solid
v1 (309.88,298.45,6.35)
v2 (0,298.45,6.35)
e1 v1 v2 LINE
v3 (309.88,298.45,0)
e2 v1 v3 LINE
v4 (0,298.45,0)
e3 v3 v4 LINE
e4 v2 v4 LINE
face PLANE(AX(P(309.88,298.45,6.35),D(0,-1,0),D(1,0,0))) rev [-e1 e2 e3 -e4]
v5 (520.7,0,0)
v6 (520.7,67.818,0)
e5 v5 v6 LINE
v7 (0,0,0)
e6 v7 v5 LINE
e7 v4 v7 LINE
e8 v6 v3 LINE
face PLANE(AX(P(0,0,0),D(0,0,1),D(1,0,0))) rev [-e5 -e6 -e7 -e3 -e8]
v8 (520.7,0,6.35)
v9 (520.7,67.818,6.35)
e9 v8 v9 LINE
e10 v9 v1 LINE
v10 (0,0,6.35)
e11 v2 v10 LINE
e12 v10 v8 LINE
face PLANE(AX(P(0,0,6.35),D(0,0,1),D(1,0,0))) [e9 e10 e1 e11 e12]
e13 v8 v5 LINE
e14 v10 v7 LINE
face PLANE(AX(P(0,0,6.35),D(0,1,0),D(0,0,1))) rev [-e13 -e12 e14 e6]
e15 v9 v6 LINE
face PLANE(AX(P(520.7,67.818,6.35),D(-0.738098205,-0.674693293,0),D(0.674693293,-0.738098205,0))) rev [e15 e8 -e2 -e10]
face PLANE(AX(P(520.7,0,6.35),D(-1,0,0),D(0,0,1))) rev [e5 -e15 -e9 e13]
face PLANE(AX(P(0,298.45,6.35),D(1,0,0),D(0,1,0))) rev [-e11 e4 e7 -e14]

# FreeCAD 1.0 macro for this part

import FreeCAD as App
import Part
import Sketcher

V = App.Vector
Q = App.Units.Quantity


def add_polygon(sketch, points):
    """Adds a closed chain of lines whose ends are joined by coincident constraints."""
    first, n = sketch.GeometryCount, len(points)
    for a, b in zip(points, points[1:] + points[:1]):
        sketch.addGeometry(Part.LineSegment(App.Vector(*a, 0), App.Vector(*b, 0)), False)
    for i in range(n):
        sketch.addConstraint(Sketcher.Constraint("Coincident", first + i, 2, first + (i + 1) % n, 1))

doc = App.newDocument("Part")
body = doc.addObject("PartDesign::Body", "Body")

# Sketch on XY plane
sketch1 = body.newObject("Sketcher::SketchObject", "Sketch")
sketch1.AttachmentSupport = (doc.getObject("XY_Plane"), [""])
sketch1.MapMode = "FlatFace"
add_polygon(sketch1, [(0, 0), (520.7, 0), (520.7, 67.818), (309.88, 298.45), (0, 298.45)])  # lines 0-4
sketch1.addConstraint([
    Sketcher.Constraint("Horizontal", 0),
    Sketcher.Constraint("Vertical", 1),
    Sketcher.Constraint("Horizontal", 3),
    Sketcher.Constraint("Vertical", 4),
    Sketcher.Constraint("Coincident", 4, 2, -1, 1),
    Sketcher.Constraint("DistanceX", 0, 1, 0, 2, Q("20.5 in")),
    Sketcher.Constraint("DistanceX", 3, 2, 3, 1, Q("12.2 in")),
    Sketcher.Constraint("DistanceY", 1, 1, 1, 2, Q("2.67 in")),
    Sketcher.Constraint("DistanceY", 4, 2, 4, 1, Q("11.75 in")),
])
pad1 = body.newObject("PartDesign::Pad", "Pad")
pad1.Profile = sketch1
pad1.Length = Q("0.25 in")

doc.recompute()
